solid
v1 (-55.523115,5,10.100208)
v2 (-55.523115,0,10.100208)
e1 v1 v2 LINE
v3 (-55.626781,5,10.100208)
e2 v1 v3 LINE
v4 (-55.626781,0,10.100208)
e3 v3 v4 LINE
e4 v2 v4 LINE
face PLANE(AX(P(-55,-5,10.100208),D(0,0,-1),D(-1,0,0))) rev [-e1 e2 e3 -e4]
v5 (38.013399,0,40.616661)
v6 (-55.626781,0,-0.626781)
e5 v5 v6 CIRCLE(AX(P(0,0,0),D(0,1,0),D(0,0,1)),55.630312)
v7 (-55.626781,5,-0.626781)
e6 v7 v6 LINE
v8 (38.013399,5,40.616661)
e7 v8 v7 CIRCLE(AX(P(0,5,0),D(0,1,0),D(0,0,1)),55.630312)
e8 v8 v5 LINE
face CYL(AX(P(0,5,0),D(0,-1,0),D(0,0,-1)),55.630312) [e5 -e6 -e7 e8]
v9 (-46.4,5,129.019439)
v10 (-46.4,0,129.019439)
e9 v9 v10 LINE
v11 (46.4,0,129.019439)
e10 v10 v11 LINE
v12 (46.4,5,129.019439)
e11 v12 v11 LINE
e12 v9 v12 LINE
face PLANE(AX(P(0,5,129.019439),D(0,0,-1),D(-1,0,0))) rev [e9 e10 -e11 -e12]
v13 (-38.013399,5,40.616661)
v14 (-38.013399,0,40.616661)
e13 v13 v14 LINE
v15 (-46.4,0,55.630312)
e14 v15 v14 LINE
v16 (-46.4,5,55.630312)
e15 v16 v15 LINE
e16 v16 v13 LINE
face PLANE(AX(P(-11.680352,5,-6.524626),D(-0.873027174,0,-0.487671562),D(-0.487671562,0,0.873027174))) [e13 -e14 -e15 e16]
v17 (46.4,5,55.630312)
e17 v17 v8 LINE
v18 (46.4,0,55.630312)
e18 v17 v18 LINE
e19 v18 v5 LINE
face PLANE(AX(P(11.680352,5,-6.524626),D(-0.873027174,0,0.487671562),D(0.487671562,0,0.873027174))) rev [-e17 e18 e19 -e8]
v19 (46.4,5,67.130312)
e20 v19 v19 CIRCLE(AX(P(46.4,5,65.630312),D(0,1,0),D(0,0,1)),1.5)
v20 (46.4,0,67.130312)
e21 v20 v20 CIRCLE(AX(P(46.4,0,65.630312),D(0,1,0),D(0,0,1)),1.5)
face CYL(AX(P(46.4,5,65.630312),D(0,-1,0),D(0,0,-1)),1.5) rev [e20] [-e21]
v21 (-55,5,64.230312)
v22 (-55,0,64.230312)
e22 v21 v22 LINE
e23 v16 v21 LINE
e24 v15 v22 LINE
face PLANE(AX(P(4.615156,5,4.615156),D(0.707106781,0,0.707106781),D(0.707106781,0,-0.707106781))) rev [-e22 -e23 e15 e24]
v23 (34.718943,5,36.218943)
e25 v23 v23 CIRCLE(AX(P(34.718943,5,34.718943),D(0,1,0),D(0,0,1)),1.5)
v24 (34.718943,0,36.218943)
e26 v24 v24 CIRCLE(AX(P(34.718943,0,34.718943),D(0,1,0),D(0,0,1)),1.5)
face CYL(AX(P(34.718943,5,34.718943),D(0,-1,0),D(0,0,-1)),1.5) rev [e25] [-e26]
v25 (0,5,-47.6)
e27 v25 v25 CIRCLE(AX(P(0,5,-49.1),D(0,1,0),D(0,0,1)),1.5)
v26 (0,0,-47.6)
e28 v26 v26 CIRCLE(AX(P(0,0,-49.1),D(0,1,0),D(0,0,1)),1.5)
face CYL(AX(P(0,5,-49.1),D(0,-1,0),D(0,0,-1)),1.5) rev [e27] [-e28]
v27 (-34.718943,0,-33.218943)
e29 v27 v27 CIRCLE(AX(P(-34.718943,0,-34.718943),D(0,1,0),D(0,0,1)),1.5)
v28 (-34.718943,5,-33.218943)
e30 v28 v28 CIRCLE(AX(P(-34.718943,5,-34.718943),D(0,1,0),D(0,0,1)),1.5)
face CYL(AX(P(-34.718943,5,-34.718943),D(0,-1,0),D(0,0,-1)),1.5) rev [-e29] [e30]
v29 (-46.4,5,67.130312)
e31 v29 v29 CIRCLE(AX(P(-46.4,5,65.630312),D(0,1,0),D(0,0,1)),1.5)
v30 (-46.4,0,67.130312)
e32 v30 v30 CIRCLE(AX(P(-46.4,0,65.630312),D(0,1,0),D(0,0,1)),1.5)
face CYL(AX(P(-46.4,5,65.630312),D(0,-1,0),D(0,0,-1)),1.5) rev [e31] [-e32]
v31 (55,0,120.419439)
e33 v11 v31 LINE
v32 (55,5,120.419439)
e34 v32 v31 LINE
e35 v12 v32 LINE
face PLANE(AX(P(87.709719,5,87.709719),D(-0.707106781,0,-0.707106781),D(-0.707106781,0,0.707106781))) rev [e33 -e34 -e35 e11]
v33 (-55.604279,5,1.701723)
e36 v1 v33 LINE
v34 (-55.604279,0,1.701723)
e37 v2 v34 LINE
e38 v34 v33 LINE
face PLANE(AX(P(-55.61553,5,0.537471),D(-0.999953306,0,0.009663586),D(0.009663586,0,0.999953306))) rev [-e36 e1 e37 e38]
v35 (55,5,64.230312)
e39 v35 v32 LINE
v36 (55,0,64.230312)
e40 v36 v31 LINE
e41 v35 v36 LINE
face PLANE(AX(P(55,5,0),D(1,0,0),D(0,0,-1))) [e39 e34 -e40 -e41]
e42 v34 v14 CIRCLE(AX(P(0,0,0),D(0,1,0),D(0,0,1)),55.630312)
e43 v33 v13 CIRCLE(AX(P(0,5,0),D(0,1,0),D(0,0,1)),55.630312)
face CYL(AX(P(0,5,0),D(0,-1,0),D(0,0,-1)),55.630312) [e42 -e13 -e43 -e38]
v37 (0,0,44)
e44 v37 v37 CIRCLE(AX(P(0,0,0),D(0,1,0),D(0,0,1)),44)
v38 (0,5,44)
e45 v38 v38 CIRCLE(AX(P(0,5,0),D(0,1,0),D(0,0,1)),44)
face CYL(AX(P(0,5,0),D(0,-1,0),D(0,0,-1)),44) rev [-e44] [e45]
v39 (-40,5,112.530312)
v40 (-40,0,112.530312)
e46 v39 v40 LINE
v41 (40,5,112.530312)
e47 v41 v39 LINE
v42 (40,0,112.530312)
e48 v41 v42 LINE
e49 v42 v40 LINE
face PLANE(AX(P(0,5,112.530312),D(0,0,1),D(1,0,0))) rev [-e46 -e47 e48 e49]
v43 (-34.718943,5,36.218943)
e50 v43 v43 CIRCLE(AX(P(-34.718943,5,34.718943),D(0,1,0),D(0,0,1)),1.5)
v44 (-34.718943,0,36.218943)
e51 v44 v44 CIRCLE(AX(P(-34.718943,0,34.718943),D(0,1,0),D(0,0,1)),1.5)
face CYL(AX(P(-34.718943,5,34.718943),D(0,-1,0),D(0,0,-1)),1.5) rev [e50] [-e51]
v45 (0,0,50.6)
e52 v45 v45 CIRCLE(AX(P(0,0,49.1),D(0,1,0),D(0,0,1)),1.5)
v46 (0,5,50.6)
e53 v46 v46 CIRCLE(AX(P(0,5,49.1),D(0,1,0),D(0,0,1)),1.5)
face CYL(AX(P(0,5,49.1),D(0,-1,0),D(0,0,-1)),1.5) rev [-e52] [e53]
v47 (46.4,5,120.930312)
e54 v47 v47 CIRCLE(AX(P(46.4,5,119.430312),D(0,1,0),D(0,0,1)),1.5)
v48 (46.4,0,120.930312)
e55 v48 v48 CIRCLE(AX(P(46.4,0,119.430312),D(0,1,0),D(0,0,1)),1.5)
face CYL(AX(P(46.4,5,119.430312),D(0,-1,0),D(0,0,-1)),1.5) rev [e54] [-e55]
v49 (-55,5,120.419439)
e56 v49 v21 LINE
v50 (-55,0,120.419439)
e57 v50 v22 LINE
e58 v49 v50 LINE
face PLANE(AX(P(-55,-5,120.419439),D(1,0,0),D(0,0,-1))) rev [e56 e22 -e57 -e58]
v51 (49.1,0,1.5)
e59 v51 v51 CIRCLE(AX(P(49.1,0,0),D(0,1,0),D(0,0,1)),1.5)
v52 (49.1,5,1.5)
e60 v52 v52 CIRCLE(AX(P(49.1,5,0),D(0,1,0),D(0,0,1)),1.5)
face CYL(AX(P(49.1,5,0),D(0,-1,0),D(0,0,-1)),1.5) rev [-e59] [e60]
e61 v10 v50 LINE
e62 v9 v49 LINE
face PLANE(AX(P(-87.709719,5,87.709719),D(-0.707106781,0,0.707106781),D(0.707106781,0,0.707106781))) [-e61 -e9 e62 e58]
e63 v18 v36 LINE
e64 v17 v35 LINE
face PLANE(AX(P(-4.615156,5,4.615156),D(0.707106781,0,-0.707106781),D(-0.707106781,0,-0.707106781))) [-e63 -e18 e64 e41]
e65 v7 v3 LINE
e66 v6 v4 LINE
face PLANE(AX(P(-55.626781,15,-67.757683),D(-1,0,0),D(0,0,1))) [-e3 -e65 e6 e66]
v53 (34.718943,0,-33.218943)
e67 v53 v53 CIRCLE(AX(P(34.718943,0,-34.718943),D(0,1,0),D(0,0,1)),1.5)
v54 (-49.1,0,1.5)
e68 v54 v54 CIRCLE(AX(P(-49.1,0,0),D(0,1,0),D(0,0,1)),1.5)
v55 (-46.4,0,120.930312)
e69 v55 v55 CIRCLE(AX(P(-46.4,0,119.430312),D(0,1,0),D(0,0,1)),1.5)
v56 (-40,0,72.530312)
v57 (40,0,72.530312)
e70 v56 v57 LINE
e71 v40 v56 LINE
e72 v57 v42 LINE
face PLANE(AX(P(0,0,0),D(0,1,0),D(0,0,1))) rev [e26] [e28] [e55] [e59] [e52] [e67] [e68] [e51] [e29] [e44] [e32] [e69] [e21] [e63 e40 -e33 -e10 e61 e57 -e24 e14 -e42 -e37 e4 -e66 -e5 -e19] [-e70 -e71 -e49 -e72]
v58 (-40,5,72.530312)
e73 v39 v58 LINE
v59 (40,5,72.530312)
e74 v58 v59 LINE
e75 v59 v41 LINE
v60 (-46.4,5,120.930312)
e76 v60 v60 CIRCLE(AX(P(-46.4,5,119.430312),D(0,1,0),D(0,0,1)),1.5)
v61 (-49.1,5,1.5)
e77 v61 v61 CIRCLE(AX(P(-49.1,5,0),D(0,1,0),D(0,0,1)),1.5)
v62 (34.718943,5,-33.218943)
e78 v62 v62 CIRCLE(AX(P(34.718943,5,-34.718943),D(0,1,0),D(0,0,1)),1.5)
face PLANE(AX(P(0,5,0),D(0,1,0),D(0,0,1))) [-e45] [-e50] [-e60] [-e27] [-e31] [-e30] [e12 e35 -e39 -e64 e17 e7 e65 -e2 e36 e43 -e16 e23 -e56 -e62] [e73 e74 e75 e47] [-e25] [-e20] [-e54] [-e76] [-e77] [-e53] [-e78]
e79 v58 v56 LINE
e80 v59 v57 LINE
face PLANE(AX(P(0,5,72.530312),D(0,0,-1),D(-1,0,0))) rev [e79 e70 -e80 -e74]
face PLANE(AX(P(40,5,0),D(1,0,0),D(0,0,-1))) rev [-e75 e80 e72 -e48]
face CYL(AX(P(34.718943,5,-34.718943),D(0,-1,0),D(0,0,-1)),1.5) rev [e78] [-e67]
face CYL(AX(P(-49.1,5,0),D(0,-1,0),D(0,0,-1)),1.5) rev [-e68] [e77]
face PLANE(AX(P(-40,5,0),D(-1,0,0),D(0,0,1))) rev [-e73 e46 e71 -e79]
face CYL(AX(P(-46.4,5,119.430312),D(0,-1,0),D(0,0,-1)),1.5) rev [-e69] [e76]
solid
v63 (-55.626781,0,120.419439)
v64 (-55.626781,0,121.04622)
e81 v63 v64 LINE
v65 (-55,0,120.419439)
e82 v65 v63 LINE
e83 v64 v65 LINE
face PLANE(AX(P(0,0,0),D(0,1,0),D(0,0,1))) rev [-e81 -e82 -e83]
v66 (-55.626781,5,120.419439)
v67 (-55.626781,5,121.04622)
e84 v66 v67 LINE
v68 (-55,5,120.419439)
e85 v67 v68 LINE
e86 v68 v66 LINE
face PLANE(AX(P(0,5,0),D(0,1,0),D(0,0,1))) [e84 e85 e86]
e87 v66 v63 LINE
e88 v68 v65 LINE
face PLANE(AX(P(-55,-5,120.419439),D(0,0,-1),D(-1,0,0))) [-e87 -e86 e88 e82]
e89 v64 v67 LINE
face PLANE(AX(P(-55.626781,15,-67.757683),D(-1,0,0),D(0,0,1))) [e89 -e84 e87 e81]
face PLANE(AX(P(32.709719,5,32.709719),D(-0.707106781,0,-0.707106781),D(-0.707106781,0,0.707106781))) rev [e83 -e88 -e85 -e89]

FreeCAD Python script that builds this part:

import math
import FreeCAD as App
import Part
import Sketcher

doc = App.newDocument("Part")
body = doc.addObject("PartDesign::Body", "Body")
body.AllowCompound = True

sketch1 = body.newObject("Sketcher::SketchObject", "Sketch")
sketch1.AttachmentSupport = (doc.getObject("XZ_Plane"), [""])
sketch1.MapMode = "FlatFace"
sketch1.addGeometry([
    Part.LineSegment(App.Vector(55, 64.2, 0), App.Vector(46.4, 55.6, 0)),
    Part.LineSegment(App.Vector(46.4, 55.6, 0), App.Vector(38, 40.6, 0)),
    Part.ArcOfCircle(Part.Circle(App.Vector(0, 0, 0), App.Vector(0, 0, 1), 55.6), math.radians(133), math.radians(407)),
    Part.LineSegment(App.Vector(-38, 40.6, 0), App.Vector(-46.4, 55.6, 0)),
    Part.LineSegment(App.Vector(-46.4, 55.6, 0), App.Vector(-55, 64.2, 0)),
    Part.LineSegment(App.Vector(-55, 64.2, 0), App.Vector(-55, 120.4, 0)),
    Part.LineSegment(App.Vector(-55, 120.4, 0), App.Vector(-46.4, 129, 0)),
    Part.LineSegment(App.Vector(-46.4, 129, 0), App.Vector(46.4, 129, 0)),
    Part.LineSegment(App.Vector(46.4, 129, 0), App.Vector(55, 120.4, 0)),
    Part.LineSegment(App.Vector(55, 120.4, 0), App.Vector(55, 64.2, 0)),
    Part.Circle(App.Vector(-46.4, 119.4, 0), App.Vector(0, 0, 1), 1.5),
    Part.Circle(App.Vector(-46.4, 65.6, 0), App.Vector(0, 0, 1), 1.5),
    Part.LineSegment(App.Vector(40, 112.5, 0), App.Vector(-40, 112.5, 0)),
    Part.LineSegment(App.Vector(-40, 112.5, 0), App.Vector(-40, 72.5, 0)),
    Part.LineSegment(App.Vector(-40, 72.5, 0), App.Vector(40, 72.5, 0)),
    Part.LineSegment(App.Vector(40, 72.5, 0), App.Vector(40, 112.5, 0)),
    Part.Circle(App.Vector(46.4, 119.4, 0), App.Vector(0, 0, 1), 1.5),
    Part.Circle(App.Vector(0, 49.1, 0), App.Vector(0, 0, 1), 1.5),
    Part.Circle(App.Vector(46.4, 65.6, 0), App.Vector(0, 0, 1), 1.5),
    Part.Circle(App.Vector(-34.7, 34.7, 0), App.Vector(0, 0, 1), 1.5),
    Part.Circle(App.Vector(-49.1, 0, 0), App.Vector(0, 0, 1), 1.5),
    Part.Circle(App.Vector(-34.7, -34.7, 0), App.Vector(0, 0, 1), 1.5),
    Part.Circle(App.Vector(0, 0, 0), App.Vector(0, 0, 1), 44),
    Part.Circle(App.Vector(34.7, 34.7, 0), App.Vector(0, 0, 1), 1.5),
    Part.Circle(App.Vector(49.1, 0, 0), App.Vector(0, 0, 1), 1.5),
    Part.Circle(App.Vector(0, -49.1, 0), App.Vector(0, 0, 1), 1.5),
    Part.Circle(App.Vector(34.7, -34.7, 0), App.Vector(0, 0, 1), 1.5),
], False)
sketch1.addConstraint([
    Sketcher.Constraint("Coincident", 0, 2, 1, 1),
    Sketcher.Constraint("Coincident", 1, 2, 2, 2),
    Sketcher.Constraint("Coincident", 2, 1, 3, 1),
    Sketcher.Constraint("Coincident", 3, 2, 4, 1),
    Sketcher.Constraint("Coincident", 4, 2, 5, 1),
    Sketcher.Constraint("Coincident", 5, 2, 6, 1),
    Sketcher.Constraint("Coincident", 6, 2, 7, 1),
    Sketcher.Constraint("Coincident", 7, 2, 8, 1),
    Sketcher.Constraint("Coincident", 8, 2, 9, 1),
    Sketcher.Constraint("Coincident", 9, 2, 0, 1),
    Sketcher.Constraint("Coincident", 12, 2, 13, 1),
    Sketcher.Constraint("Coincident", 13, 2, 14, 1),
    Sketcher.Constraint("Coincident", 14, 2, 15, 1),
    Sketcher.Constraint("Coincident", 15, 2, 12, 1),
    Sketcher.Constraint("Vertical", 5),
    Sketcher.Constraint("Horizontal", 7),
    Sketcher.Constraint("Vertical", 9),
    Sketcher.Constraint("Horizontal", 12),
    Sketcher.Constraint("Vertical", 13),
    Sketcher.Constraint("Horizontal", 14),
    Sketcher.Constraint("Vertical", 15),
    Sketcher.Constraint("Coincident", 2, 3, -1, 1),
    Sketcher.Constraint("Coincident", 22, 3, -1, 1),
    Sketcher.Constraint("Equal", 10, 11),
    Sketcher.Constraint("Equal", 11, 16),
    Sketcher.Constraint("Equal", 16, 17),
    Sketcher.Constraint("Equal", 17, 18),
    Sketcher.Constraint("Equal", 18, 19),
    Sketcher.Constraint("Equal", 19, 20),
    Sketcher.Constraint("Equal", 20, 21),
    Sketcher.Constraint("Equal", 21, 23),
    Sketcher.Constraint("Equal", 23, 24),
    Sketcher.Constraint("Equal", 24, 25),
    Sketcher.Constraint("Equal", 25, 26),
    Sketcher.Constraint("Symmetric", 21, 3, 23, 3, -1, 1),
    Sketcher.Constraint("Symmetric", 20, 3, 24, 3, -1, 1),
    Sketcher.Constraint("Symmetric", 17, 3, 25, 3, -1, 1),
    Sketcher.Constraint("Symmetric", 19, 3, 26, 3, -1, 1),
    Sketcher.Constraint("Symmetric", 10, 3, 16, 3, -2),
    Sketcher.Constraint("Symmetric", 11, 3, 18, 3, -2),
    Sketcher.Constraint("Symmetric", 19, 3, 23, 3, -2),
    Sketcher.Constraint("Symmetric", 0, 2, 3, 2, -2),
    Sketcher.Constraint("Symmetric", 5, 2, 8, 2, -2),
    Sketcher.Constraint("PointOnObject", 17, 3, -2),
    Sketcher.Constraint("PointOnObject", 20, 3, -1),
    Sketcher.Constraint("Perpendicular", 0, 4),
    Sketcher.Constraint("Perpendicular", 4, 6),
    Sketcher.Constraint("Perpendicular", 6, 8),
    Sketcher.Constraint("Horizontal", 1, 2, 2, 1),
    Sketcher.Constraint("Horizontal", 4, 2, 9, 2),
    Sketcher.Constraint("Vertical", 10, 3, 11, 3),
    Sketcher.Constraint("Vertical", 18, 3, 0, 2),
    Sketcher.Constraint("Vertical", 3, 2, 6, 2),
    Sketcher.Constraint("Diameter", 10, 3.0),
    Sketcher.Constraint("Diameter", 22, 88.0),
    Sketcher.Constraint("DistanceX", 12, 2, 12, 1, 80.0),
    Sketcher.Constraint("DistanceY", 13, 2, 13, 1, 40.0),
    Sketcher.Constraint("DistanceX", 7, 1, 7, 2, 92.8),
    Sketcher.Constraint("DistanceX", 4, 2, -1, 1, 55.0),
    Sketcher.Constraint("DistanceX", 12, 2, -1, 1, 40.0),
    Sketcher.Constraint("DistanceY", 0, 2, 18, 3, 10.0),
    Sketcher.Constraint("DistanceY", -1, 1, 17, 3, 49.1),
    Sketcher.Constraint("DistanceX", 20, 3, -1, 1, 49.1),
    Sketcher.Constraint("DistanceY", 11, 3, 10, 3, 53.8),
    Sketcher.Constraint("DistanceY", 12, 2, 10, 3, 6.9),
    Sketcher.Constraint("Radius", 2, 55.630312),
    Sketcher.Constraint("DistanceX", -1, 1, 1, 2, 38.013399),
    Sketcher.Constraint("DistanceY", 5, 1, 5, 2, 56.189126),
    Sketcher.Constraint("DistanceY", -1, 1, 5, 2, 120.419439),
    Sketcher.Constraint("DistanceY", 19, 3, 11, 3, 30.911369),
    Sketcher.Constraint("DistanceX", 19, 3, -1, 1, 34.718943),
])
pad1 = body.newObject("PartDesign::Pad", "Pad")
pad1.Profile = sketch1
pad1.Length = 5
pad1.Reversed = True

sketch2 = body.newObject("Sketcher::SketchObject", "Sketch001")
sketch2.AttachmentSupport = (doc.getObject("XZ_Plane"), [""])
sketch2.MapMode = "FlatFace"
sketch2.addGeometry([
    Part.LineSegment(App.Vector(-55, 120.4, 0), App.Vector(-55, 64.2, 0)),
    Part.LineSegment(App.Vector(-55, 64.2, 0), App.Vector(-55.6, -0.6, 0)),
    Part.LineSegment(App.Vector(-55.6, -0.6, 0), App.Vector(-55.6, -59.8, 0)),
    Part.LineSegment(App.Vector(-55.6, -59.8, 0), App.Vector(-63.6, -67.8, 0)),
    Part.LineSegment(App.Vector(-63.6, -67.8, 0), App.Vector(-123.6, -67.8, 0)),
    Part.LineSegment(App.Vector(-123.6, -67.8, 0), App.Vector(-132.2, -59.2, 0)),
    Part.LineSegment(App.Vector(-132.2, -59.2, 0), App.Vector(-132.2, 120.4, 0)),
    Part.LineSegment(App.Vector(-132.2, 120.4, 0), App.Vector(-123.6, 129, 0)),
    Part.LineSegment(App.Vector(-123.6, 129, 0), App.Vector(-63.6, 129, 0)),
    Part.LineSegment(App.Vector(-63.6, 129, 0), App.Vector(-55, 120.4, 0)),
    Part.Circle(App.Vector(-123.6, 120.4, 0), App.Vector(0, 0, 1), 1.5),
    Part.Circle(App.Vector(-63.6, 120.4, 0), App.Vector(0, 0, 1), 1.5),
    Part.Circle(App.Vector(-123.6, -59.2, 0), App.Vector(0, 0, 1), 1.5),
    Part.Circle(App.Vector(-63.6, -59.8, 0), App.Vector(0, 0, 1), 1.5),
], False)
sketch2.addConstraint([
    Sketcher.Constraint("Coincident", 0, 2, 1, 1),
    Sketcher.Constraint("Coincident", 1, 2, 2, 1),
    Sketcher.Constraint("Coincident", 2, 2, 3, 1),
    Sketcher.Constraint("Coincident", 3, 2, 4, 1),
    Sketcher.Constraint("Coincident", 4, 2, 5, 1),
    Sketcher.Constraint("Coincident", 5, 2, 6, 1),
    Sketcher.Constraint("Coincident", 6, 2, 7, 1),
    Sketcher.Constraint("Coincident", 7, 2, 8, 1),
    Sketcher.Constraint("Coincident", 8, 2, 9, 1),
    Sketcher.Constraint("Coincident", 9, 2, 0, 1),
    Sketcher.Constraint("Vertical", 0),
    Sketcher.Constraint("Vertical", 2),
    Sketcher.Constraint("Horizontal", 4),
    Sketcher.Constraint("Vertical", 6),
    Sketcher.Constraint("Horizontal", 8),
    Sketcher.Constraint("Equal", 10, 11),
    Sketcher.Constraint("Equal", 11, 12),
    Sketcher.Constraint("Equal", 12, 13),
    Sketcher.Constraint("Perpendicular", 3, 5),
    Sketcher.Constraint("Perpendicular", 5, 7),
    Sketcher.Constraint("Perpendicular", 7, 9),
    Sketcher.Constraint("Horizontal", 10, 3, 11, 3),
    Sketcher.Constraint("Horizontal", 13, 3, 2, 2),
    Sketcher.Constraint("Horizontal", 12, 3, 5, 2),
    Sketcher.Constraint("Horizontal", 11, 3, 6, 2),
    Sketcher.Constraint("Horizontal", 6, 2, 9, 2),
    Sketcher.Constraint("Vertical", 10, 3, 12, 3),
    Sketcher.Constraint("Vertical", 11, 3, 13, 3),
    Sketcher.Constraint("Vertical", 13, 3, 3, 2),
    Sketcher.Constraint("Vertical", 12, 3, 4, 2),
    Sketcher.Constraint("Vertical", 4, 2, 7, 2),
    Sketcher.Constraint("Vertical", 3, 2, 8, 2),
    Sketcher.Constraint("Equal", 5, 7),
    Sketcher.Constraint("Diameter", 10, 3.0),
    Sketcher.Constraint("DistanceX", 4, 2, 4, 1, 60.0),
    Sketcher.Constraint("DistanceX", 0, 2, -1, 1, 55.0),
    Sketcher.Constraint("DistanceX", 10, 3, -1, 1, 123.6),
    Sketcher.Constraint("DistanceY", 6, 1, 6, 2, 179.577122),
    Sketcher.Constraint("DistanceY", 12, 3, 1, 2, 58.530902),
    Sketcher.Constraint("DistanceY", 0, 2, 0, 1, 56.189126),
    Sketcher.Constraint("DistanceY", 2, 2, 2, 1, 59.157683),
    Sketcher.Constraint("DistanceY", -1, 1, 10, 3, 120.419439),
])
pad2 = body.newObject("PartDesign::Pad", "Pad001")
pad2.Profile = sketch2
pad2.Length = 5
pad2.Reversed = True

sketch3 = body.newObject("Sketcher::SketchObject", "Sketch002")
sketch3.AttachmentSupport = (doc.getObject("XZ_Plane"), [""])
sketch3.MapMode = "FlatFace"
sketch3.addGeometry([
    Part.Circle(App.Vector(-94, 94, 0), App.Vector(0, 0, 1), 30),
    Part.Circle(App.Vector(-94, 94, 0), App.Vector(0, 0, 1), 25),
    Part.Circle(App.Vector(-94, 31, 0), App.Vector(0, 0, 1), 30),
    Part.Circle(App.Vector(-94, 31, 0), App.Vector(0, 0, 1), 25),
    Part.Circle(App.Vector(-94, -32, 0), App.Vector(0, 0, 1), 30),
    Part.Circle(App.Vector(-94, -32, 0), App.Vector(0, 0, 1), 25),
], False)
sketch3.addConstraint([
    Sketcher.Constraint("Coincident", 1, 3, 0, 3),
    Sketcher.Constraint("Coincident", 3, 3, 2, 3),
    Sketcher.Constraint("Coincident", 5, 3, 4, 3),
    Sketcher.Constraint("Equal", 0, 2),
    Sketcher.Constraint("Equal", 1, 3),
    Sketcher.Constraint("Equal", 2, 4),
    Sketcher.Constraint("Equal", 3, 5),
    Sketcher.Constraint("Vertical", 1, 3, 2, 3),
    Sketcher.Constraint("Vertical", 3, 3, 4, 3),
    Sketcher.Constraint("Diameter", 0, 60.0),
    Sketcher.Constraint("Diameter", 1, 50.0),
    Sketcher.Constraint("DistanceX", 0, 3, -1, 1, 93.6),
    Sketcher.Constraint("DistanceY", -1, 1, 0, 3, 94.019439),
    Sketcher.Constraint("DistanceY", 4, 3, -1, 1, 32.408258),
    Sketcher.Constraint("DistanceY", 2, 3, 0, 3, 62.866712),
])
pad3 = body.newObject("PartDesign::Pad", "Pad002")
pad3.Profile = sketch3
pad3.Length = 15
pad3.Reversed = True

sketch4 = body.newObject("Sketcher::SketchObject", "Sketch003")
sketch4.AttachmentSupport = (doc.getObject("XZ_Plane"), [""])
sketch4.MapMode = "FlatFace"
sketch4.AttachmentOffset = App.Placement(App.Vector(0, 0, -5), App.Rotation())
sketch4.addGeometry([
    Part.LineSegment(App.Vector(-180, -68, 0), App.Vector(-180, 136, 0)),
    Part.LineSegment(App.Vector(-180, 136, 0), App.Vector(-56, 136, 0)),
    Part.LineSegment(App.Vector(-56, 136, 0), App.Vector(-56, -68, 0)),
    Part.LineSegment(App.Vector(-56, -68, 0), App.Vector(-180, -68, 0)),
], False)
sketch4.addConstraint([
    Sketcher.Constraint("Coincident", 0, 2, 1, 1),
    Sketcher.Constraint("Coincident", 1, 2, 2, 1),
    Sketcher.Constraint("Coincident", 2, 2, 3, 1),
    Sketcher.Constraint("Coincident", 3, 2, 0, 1),
    Sketcher.Constraint("Vertical", 0),
    Sketcher.Constraint("Horizontal", 1),
    Sketcher.Constraint("Vertical", 2),
    Sketcher.Constraint("Horizontal", 3),
    Sketcher.Constraint("DistanceX", 1, 1, 1, 2, 124.485015),
    Sketcher.Constraint("DistanceY", 0, 1, 0, 2, 203.768364),
    Sketcher.Constraint("DistanceY", -1, 1, 0, 2, 136.010681),
    Sketcher.Constraint("DistanceX", 1, 2, -1, 1, 55.626781),
])
pocket1 = body.newObject("PartDesign::Pocket", "Pocket")
pocket1.Profile = sketch4
pocket1.Type = "ThroughAll"
pocket1.Midplane = True

sketch5 = body.newObject("Sketcher::SketchObject", "Sketch004")
sketch5.AttachmentSupport = (doc.getObject("XZ_Plane"), [""])
sketch5.MapMode = "FlatFace"
sketch5.AttachmentOffset = App.Placement(App.Vector(0, 0, -5), App.Rotation())
sketch5.addGeometry([
    Part.LineSegment(App.Vector(-129, 10, 0), App.Vector(-129, 120, 0)),
    Part.LineSegment(App.Vector(-129, 120, 0), App.Vector(-55, 120, 0)),
    Part.LineSegment(App.Vector(-55, 120, 0), App.Vector(-55, 10, 0)),
    Part.LineSegment(App.Vector(-55, 10, 0), App.Vector(-129, 10, 0)),
], False)
sketch5.addConstraint([
    Sketcher.Constraint("Coincident", 0, 2, 1, 1),
    Sketcher.Constraint("Coincident", 1, 2, 2, 1),
    Sketcher.Constraint("Coincident", 2, 2, 3, 1),
    Sketcher.Constraint("Coincident", 3, 2, 0, 1),
    Sketcher.Constraint("Vertical", 0),
    Sketcher.Constraint("Horizontal", 1),
    Sketcher.Constraint("Vertical", 2),
    Sketcher.Constraint("Horizontal", 3),
    Sketcher.Constraint("DistanceX", 1, 2, -1, 1, 55.0),
    Sketcher.Constraint("DistanceY", 0, 1, 0, 2, 110.319231),
    Sketcher.Constraint("DistanceX", 1, 1, 1, 2, 73.623406),
    Sketcher.Constraint("DistanceY", -1, 1, 0, 2, 120.419439),
])
pocket2 = body.newObject("PartDesign::Pocket", "Pocket001")
pocket2.Profile = sketch5
pocket2.Length = 10
pocket2.Reversed = True

doc.recompute()
